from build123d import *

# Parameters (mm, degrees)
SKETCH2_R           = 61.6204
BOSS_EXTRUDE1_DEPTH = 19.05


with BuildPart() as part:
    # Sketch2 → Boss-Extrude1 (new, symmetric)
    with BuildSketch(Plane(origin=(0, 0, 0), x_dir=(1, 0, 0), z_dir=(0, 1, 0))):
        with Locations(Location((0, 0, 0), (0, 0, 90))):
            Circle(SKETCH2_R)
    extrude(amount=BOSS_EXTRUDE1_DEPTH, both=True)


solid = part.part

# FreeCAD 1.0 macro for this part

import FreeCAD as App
import Part
import Sketcher
Q = App.Units.Quantity

doc = App.newDocument("Part")
body = doc.addObject("PartDesign::Body", "Body")

# Sketch on XZ plane
sketch1 = body.newObject("Sketcher::SketchObject", "Sketch")
sketch1.AttachmentSupport = (doc.getObject("XZ_Plane"), [""])
sketch1.MapMode = "FlatFace"
sketch1.addGeometry(Part.Circle(App.Vector(0, 0, 0), App.Vector(0, 0, 1), 61.6204), False)
sketch1.addConstraint([
    Sketcher.Constraint("Coincident", 0, 3, -1, 1),
    Sketcher.Constraint("Diameter", 0, Q("4.852 in")),
])
pad1 = body.newObject("PartDesign::Pad", "Pad")
pad1.Profile = sketch1
pad1.Length = Q("1.5 in")
pad1.Midplane = True

doc.recompute()
